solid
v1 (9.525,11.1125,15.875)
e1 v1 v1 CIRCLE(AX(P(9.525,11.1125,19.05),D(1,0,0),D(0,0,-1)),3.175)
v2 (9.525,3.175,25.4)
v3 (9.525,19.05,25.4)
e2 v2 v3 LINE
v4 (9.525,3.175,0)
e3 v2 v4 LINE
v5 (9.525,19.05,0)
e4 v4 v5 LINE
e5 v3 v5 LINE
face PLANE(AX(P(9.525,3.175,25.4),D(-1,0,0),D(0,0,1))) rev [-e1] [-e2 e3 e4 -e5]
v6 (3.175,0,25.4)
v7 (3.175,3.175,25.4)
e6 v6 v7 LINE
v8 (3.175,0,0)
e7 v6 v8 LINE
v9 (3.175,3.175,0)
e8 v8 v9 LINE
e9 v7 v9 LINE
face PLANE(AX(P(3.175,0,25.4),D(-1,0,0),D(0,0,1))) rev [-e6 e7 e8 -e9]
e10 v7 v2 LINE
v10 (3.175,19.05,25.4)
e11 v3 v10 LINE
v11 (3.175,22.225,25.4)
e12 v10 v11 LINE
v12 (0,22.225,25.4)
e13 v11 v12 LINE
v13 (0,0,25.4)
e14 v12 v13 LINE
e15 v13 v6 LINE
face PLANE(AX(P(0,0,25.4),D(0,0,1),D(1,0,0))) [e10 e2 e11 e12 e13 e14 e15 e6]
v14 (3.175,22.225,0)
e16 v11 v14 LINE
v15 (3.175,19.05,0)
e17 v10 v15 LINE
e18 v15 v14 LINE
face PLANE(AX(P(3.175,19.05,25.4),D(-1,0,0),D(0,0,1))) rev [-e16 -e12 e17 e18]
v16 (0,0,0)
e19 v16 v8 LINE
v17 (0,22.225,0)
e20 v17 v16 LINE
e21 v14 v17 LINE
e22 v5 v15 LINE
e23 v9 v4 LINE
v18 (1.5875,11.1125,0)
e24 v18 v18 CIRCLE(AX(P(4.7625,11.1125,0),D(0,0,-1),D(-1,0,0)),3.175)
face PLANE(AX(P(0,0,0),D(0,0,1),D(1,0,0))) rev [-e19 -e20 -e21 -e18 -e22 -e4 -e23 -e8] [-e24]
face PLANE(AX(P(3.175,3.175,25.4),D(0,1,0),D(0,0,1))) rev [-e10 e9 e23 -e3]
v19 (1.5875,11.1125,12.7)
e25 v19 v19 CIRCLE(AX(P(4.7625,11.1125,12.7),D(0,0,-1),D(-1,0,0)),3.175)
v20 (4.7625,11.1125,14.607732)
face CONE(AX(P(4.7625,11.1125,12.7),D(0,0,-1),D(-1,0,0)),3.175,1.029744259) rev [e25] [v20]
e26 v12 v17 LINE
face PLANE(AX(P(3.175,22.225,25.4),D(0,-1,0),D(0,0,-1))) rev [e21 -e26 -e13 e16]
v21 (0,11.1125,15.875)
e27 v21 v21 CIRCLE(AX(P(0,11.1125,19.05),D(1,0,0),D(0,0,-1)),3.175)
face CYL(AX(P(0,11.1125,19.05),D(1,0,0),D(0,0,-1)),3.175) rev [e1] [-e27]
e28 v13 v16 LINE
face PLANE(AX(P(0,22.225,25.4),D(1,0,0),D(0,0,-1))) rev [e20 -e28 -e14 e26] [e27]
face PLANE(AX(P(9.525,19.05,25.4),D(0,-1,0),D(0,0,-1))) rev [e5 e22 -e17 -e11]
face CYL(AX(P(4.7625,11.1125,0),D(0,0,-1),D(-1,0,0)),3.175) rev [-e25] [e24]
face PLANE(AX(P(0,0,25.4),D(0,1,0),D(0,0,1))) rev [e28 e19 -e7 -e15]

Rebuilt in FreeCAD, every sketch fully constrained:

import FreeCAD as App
import Part
import Sketcher
Q = App.Units.Quantity


def add_polygon(sketch, points):
    """Adds a closed chain of lines whose ends are joined by coincident constraints."""
    first, n = sketch.GeometryCount, len(points)
    for a, b in zip(points, points[1:] + points[:1]):
        sketch.addGeometry(Part.LineSegment(App.Vector(*a, 0), App.Vector(*b, 0)), False)
    for i in range(n):
        sketch.addConstraint(Sketcher.Constraint("Coincident", first + i, 2, first + (i + 1) % n, 1))

doc = App.newDocument("Part")
body = doc.addObject("PartDesign::Body", "Body")

sketch1 = doc.addObject("Sketcher::SketchObject", "Sketch")
body.addObject(sketch1)
sketch1.AttachmentSupport = (doc.XY_Plane, [""])
sketch1.MapMode = "FlatFace"
add_polygon(sketch1, [(0, 0), (3.175, 0), (3.175, 3.175), (9.525, 3.175), (9.525, 19.05), (3.175, 19.05), (3.175, 22.225), (0, 22.225)])
sketch1.addConstraint(Sketcher.Constraint("Horizontal", 0))
sketch1.addConstraint(Sketcher.Constraint("Vertical", 1))
sketch1.addConstraint(Sketcher.Constraint("Horizontal", 2))
sketch1.addConstraint(Sketcher.Constraint("Vertical", 3))
sketch1.addConstraint(Sketcher.Constraint("Horizontal", 4))
sketch1.addConstraint(Sketcher.Constraint("Vertical", 5))
sketch1.addConstraint(Sketcher.Constraint("Horizontal", 6))
sketch1.addConstraint(Sketcher.Constraint("Vertical", 7))
sketch1.addConstraint(Sketcher.Constraint("Coincident", 7, 2, -1, 1))
sketch1.addConstraint(Sketcher.Constraint("Vertical", 1, 2, 4, 2))
sketch1.addConstraint(Sketcher.Constraint("Equal", 6, 1))
sketch1.addConstraint(Sketcher.Constraint("Equal", 1, 5))
sketch1.addConstraint(Sketcher.Constraint("DistanceX", 2, 1, 2, 2, Q("0.25 in")))
sketch1.addConstraint(Sketcher.Constraint("DistanceX", 0, 1, 0, 2, Q("0.125 in")))
sketch1.addConstraint(Sketcher.Constraint("DistanceY", 3, 1, 3, 2, Q("0.625 in")))
pad1 = doc.addObject("PartDesign::Pad", "Pad")
body.addObject(pad1)
pad1.Profile = sketch1
pad1.Length = Q("1 in")

sketch2 = doc.addObject("Sketcher::SketchObject", "Sketch001")
body.addObject(sketch2)
sketch2.AttachmentSupport = (doc.YZ_Plane, [""])
sketch2.MapMode = "FlatFace"
sketch2.AttachmentOffset = App.Placement(App.Vector(0, 0, 0.375 * 25.4), App.Rotation())
sketch2.addGeometry(Part.Circle(App.Vector(11.1125, 19.05, 0), App.Vector(0, 0, 1), 3.175), False)
sketch2.addConstraint(Sketcher.Constraint("Diameter", 0, Q("0.25 in")))
sketch2.addConstraint(Sketcher.Constraint("DistanceY", -1, 1, 0, 3, Q("0.75 in")))
sketch2.addConstraint(Sketcher.Constraint("DistanceX", -1, 1, 0, 3, Q("0.4375 in")))
pocket1 = doc.addObject("PartDesign::Pocket", "Pocket")
body.addObject(pocket1)
pocket1.Profile = sketch2
pocket1.Type = "ThroughAll"

sketch3 = doc.addObject("Sketcher::SketchObject", "Sketch002")
body.addObject(sketch3)
sketch3.AttachmentSupport = (doc.XY_Plane, [""])
sketch3.MapMode = "FlatFace"
sketch3.addGeometry(Part.Circle(App.Vector(4.7625, 11.1125, 0), App.Vector(0, 0, 1), 3.175), False)
sketch3.addConstraint(Sketcher.Constraint("Diameter", 0, Q("0.25 in")))
sketch3.addConstraint(Sketcher.Constraint("DistanceX", -1, 1, 0, 3, Q("0.1875 in")))
sketch3.addConstraint(Sketcher.Constraint("DistanceY", -1, 1, 0, 3, Q("0.4375 in")))
doc.recompute()
hole = doc.addObject("PartDesign::Hole", "Hole")
body.addObject(hole)
hole.Profile = sketch3
hole.ThreadType = "None"
hole.Diameter = Q("0.25 in")
hole.DepthType = "Dimension"
hole.Depth = Q("0.5 in")
hole.DrillPoint = "Angled"
hole.DrillPointAngle = 118
hole.Reversed = True

doc.recompute()
